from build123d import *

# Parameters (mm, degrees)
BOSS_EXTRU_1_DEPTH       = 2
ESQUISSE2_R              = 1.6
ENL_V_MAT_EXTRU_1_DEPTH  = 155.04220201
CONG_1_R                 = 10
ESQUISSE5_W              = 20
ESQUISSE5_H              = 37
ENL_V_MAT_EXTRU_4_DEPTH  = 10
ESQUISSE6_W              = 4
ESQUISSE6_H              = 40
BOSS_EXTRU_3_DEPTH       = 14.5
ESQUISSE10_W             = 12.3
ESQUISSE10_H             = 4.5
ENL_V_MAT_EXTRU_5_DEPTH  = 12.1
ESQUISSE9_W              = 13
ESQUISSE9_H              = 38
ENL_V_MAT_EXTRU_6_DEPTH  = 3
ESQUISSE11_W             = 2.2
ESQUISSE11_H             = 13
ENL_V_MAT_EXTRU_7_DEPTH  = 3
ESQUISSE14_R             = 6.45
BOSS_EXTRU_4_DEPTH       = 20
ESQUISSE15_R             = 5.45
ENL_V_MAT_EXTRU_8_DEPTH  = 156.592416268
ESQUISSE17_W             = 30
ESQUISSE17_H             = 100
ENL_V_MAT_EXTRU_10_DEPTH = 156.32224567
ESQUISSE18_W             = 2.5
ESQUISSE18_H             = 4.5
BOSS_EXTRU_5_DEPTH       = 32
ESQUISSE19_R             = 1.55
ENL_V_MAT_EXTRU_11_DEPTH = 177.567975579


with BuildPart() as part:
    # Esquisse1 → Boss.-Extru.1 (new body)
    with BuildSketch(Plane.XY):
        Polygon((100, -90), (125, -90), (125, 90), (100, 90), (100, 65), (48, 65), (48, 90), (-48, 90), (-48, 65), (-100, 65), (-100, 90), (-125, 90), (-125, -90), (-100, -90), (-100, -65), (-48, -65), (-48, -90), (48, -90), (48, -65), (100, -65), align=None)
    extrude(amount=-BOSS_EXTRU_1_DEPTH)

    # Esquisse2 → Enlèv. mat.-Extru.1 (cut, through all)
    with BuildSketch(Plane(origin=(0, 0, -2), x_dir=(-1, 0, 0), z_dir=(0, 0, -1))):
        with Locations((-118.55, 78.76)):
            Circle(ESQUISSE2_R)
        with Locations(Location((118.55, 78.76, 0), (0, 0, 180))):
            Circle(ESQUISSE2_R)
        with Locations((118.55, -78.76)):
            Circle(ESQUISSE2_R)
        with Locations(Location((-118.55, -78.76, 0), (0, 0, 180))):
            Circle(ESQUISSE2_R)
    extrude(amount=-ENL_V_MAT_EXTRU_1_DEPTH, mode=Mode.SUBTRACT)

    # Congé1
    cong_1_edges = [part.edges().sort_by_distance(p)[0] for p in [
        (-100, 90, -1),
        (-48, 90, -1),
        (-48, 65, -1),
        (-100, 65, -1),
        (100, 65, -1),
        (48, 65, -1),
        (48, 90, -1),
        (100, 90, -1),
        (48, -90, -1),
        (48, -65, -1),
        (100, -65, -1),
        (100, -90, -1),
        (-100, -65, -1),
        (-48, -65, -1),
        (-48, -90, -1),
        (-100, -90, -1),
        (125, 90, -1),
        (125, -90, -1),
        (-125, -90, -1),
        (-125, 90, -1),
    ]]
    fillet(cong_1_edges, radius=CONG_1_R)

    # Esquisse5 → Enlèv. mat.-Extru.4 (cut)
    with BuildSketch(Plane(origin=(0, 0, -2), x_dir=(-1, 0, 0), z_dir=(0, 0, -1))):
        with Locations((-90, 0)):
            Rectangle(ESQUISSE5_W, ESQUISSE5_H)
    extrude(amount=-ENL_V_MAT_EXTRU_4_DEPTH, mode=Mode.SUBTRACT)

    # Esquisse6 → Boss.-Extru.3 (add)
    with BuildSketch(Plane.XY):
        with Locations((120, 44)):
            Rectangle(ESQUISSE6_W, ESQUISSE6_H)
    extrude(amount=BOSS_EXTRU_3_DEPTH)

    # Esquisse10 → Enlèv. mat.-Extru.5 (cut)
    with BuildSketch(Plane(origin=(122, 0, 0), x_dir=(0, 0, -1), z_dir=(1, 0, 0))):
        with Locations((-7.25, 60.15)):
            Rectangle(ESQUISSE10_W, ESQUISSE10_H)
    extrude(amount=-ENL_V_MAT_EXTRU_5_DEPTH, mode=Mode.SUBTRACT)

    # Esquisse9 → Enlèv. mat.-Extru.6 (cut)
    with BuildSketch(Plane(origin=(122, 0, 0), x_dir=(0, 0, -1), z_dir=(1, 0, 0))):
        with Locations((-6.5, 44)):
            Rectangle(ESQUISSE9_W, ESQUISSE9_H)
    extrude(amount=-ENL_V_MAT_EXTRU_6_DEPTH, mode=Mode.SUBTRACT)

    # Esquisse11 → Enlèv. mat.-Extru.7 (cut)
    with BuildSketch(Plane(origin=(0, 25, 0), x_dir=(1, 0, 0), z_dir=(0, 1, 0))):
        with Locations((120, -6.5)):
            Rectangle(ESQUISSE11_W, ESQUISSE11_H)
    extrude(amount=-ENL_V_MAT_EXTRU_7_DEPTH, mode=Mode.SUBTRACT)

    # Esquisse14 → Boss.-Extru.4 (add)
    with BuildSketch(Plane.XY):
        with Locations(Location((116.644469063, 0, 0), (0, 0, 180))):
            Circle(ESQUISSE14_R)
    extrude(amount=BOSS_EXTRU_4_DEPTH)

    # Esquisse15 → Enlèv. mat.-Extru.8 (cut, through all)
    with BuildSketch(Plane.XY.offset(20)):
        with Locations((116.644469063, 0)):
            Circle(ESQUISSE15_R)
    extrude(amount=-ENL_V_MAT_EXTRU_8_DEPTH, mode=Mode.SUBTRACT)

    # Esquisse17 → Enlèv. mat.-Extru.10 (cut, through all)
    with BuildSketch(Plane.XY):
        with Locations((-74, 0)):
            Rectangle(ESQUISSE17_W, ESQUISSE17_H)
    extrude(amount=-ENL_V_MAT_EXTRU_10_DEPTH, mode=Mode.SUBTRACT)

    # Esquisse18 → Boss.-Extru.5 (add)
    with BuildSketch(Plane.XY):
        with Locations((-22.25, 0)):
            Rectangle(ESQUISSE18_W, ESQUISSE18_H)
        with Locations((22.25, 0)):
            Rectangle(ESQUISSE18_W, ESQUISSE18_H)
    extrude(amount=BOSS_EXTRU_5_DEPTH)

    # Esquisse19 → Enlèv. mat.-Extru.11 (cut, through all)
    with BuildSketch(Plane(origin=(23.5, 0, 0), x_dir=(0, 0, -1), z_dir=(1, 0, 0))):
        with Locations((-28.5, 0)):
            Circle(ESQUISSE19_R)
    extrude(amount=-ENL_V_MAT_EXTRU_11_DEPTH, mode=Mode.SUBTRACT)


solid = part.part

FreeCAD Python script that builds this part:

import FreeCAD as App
import Part
import Sketcher
from FreeCAD import Vector


def edges_at(feature, points):
    """Names of the edges that pass closest to the given points."""
    edges = feature.Shape.Edges
    near = lambda p: min(range(len(edges)), key=lambda i: edges[i].distToShape(Part.Vertex(*p))[0])
    return sorted({f"Edge{near(p) + 1}" for p in points})

doc = App.newDocument("Part")
params = doc.addObject("Spreadsheet::Sheet", "Params")
for row, (alias, value) in enumerate([
    ("sketch1_width", "25 mm"),
    ("sketch1_width2", "52 mm"),
    ("sketch1_width3", "96 mm"),
    ("sketch1_height", "180 mm"),
    ("pad1_length", "2 mm"),
    ("sketch2_diameter", "3.2 mm"),
    ("fillet_radius", "10 mm"),
    ("sketch3_width", "20 mm"),
    ("sketch3_height", "37 mm"),
    ("pocket2_length", "10 mm"),
    ("sketch4_width", "4 mm"),
    ("sketch4_height", "40 mm"),
    ("pad2_length", "14.5 mm"),
    ("sketch5_width", "4.5 mm"),
    ("sketch5_height", "12.3 mm"),
    ("pocket3_length", "12.1 mm"),
    ("sketch6_width", "38 mm"),
    ("sketch6_height", "13 mm"),
    ("pocket4_length", "3 mm"),
    ("sketch7_height", "13 mm"),
    ("sketch7_width", "2.2 mm"),
    ("pocket5_length", "3 mm"),
    ("sketch8_diameter", "12.9 mm"),
    ("pad3_length", "20 mm"),
    ("sketch9_diameter", "10.9 mm"),
    ("sketch10_width", "30 mm"),
    ("sketch10_height", "100 mm"),
    ("sketch11_width", "2.5 mm"),
    ("sketch11_height", "4.5 mm"),
    ("pad4_length", "32 mm"),
    ("sketch12_diameter", "3.1 mm"),
], start=1):
    params.set(f"A{row}", alias)
    params.set(f"B{row}", "=" + value)
    params.setAlias(f"B{row}", alias)

body = doc.addObject("PartDesign::Body", "Body")

# Sketch on XY plane
sketch1 = body.newObject("Sketcher::SketchObject", "Sketch")
sketch1.AttachmentSupport = (doc.getObject("XY_Plane"), [""])
sketch1.MapMode = "FlatFace"
sketch1.addGeometry([
    Part.LineSegment(Vector(100, -90, 0), Vector(125, -90, 0)),  # 0
    Part.LineSegment(Vector(125, -90, 0), Vector(125, 90, 0)),  # 1
    Part.LineSegment(Vector(125, 90, 0), Vector(100, 90, 0)),  # 2
    Part.LineSegment(Vector(100, 90, 0), Vector(100, 65, 0)),  # 3
    Part.LineSegment(Vector(100, 65, 0), Vector(48, 65, 0)),  # 4
    Part.LineSegment(Vector(48, 65, 0), Vector(48, 90, 0)),  # 5
    Part.LineSegment(Vector(48, 90, 0), Vector(-48, 90, 0)),  # 6
    Part.LineSegment(Vector(-48, 90, 0), Vector(-48, 65, 0)),  # 7
    Part.LineSegment(Vector(-48, 65, 0), Vector(-100, 65, 0)),  # 8
    Part.LineSegment(Vector(-100, 65, 0), Vector(-100, 90, 0)),  # 9
    Part.LineSegment(Vector(-100, 90, 0), Vector(-125, 90, 0)),  # 10
    Part.LineSegment(Vector(-125, 90, 0), Vector(-125, -90, 0)),  # 11
    Part.LineSegment(Vector(-125, -90, 0), Vector(-100, -90, 0)),  # 12
    Part.LineSegment(Vector(-100, -90, 0), Vector(-100, -65, 0)),  # 13
    Part.LineSegment(Vector(-100, -65, 0), Vector(-48, -65, 0)),  # 14
    Part.LineSegment(Vector(-48, -65, 0), Vector(-48, -90, 0)),  # 15
    Part.LineSegment(Vector(-48, -90, 0), Vector(48, -90, 0)),  # 16
    Part.LineSegment(Vector(48, -90, 0), Vector(48, -65, 0)),  # 17
    Part.LineSegment(Vector(48, -65, 0), Vector(100, -65, 0)),  # 18
    Part.LineSegment(Vector(100, -65, 0), Vector(100, -90, 0)),  # 19
], False)
sketch1.addConstraint([
    Sketcher.Constraint("Coincident", 0, 2, 1, 1),
    Sketcher.Constraint("Coincident", 1, 2, 2, 1),
    Sketcher.Constraint("Coincident", 2, 2, 3, 1),
    Sketcher.Constraint("Coincident", 3, 2, 4, 1),
    Sketcher.Constraint("Coincident", 4, 2, 5, 1),
    Sketcher.Constraint("Coincident", 5, 2, 6, 1),
    Sketcher.Constraint("Coincident", 6, 2, 7, 1),
    Sketcher.Constraint("Coincident", 7, 2, 8, 1),
    Sketcher.Constraint("Coincident", 8, 2, 9, 1),
    Sketcher.Constraint("Coincident", 9, 2, 10, 1),
    Sketcher.Constraint("Coincident", 10, 2, 11, 1),
    Sketcher.Constraint("Coincident", 11, 2, 12, 1),
    Sketcher.Constraint("Coincident", 12, 2, 13, 1),
    Sketcher.Constraint("Coincident", 13, 2, 14, 1),
    Sketcher.Constraint("Coincident", 14, 2, 15, 1),
    Sketcher.Constraint("Coincident", 15, 2, 16, 1),
    Sketcher.Constraint("Coincident", 16, 2, 17, 1),
    Sketcher.Constraint("Coincident", 17, 2, 18, 1),
    Sketcher.Constraint("Coincident", 18, 2, 19, 1),
    Sketcher.Constraint("Coincident", 19, 2, 0, 1),
    Sketcher.Constraint("Horizontal", 0),
    Sketcher.Constraint("Vertical", 1),
    Sketcher.Constraint("Horizontal", 2),
    Sketcher.Constraint("Vertical", 3),
    Sketcher.Constraint("Horizontal", 4),
    Sketcher.Constraint("Vertical", 5),
    Sketcher.Constraint("Horizontal", 6),
    Sketcher.Constraint("Vertical", 7),
    Sketcher.Constraint("Horizontal", 8),
    Sketcher.Constraint("Vertical", 9),
    Sketcher.Constraint("Horizontal", 10),
    Sketcher.Constraint("Vertical", 11),
    Sketcher.Constraint("Horizontal", 12),
    Sketcher.Constraint("Vertical", 13),
    Sketcher.Constraint("Horizontal", 14),
    Sketcher.Constraint("Vertical", 15),
    Sketcher.Constraint("Horizontal", 16),
    Sketcher.Constraint("Vertical", 17),
    Sketcher.Constraint("Horizontal", 18),
    Sketcher.Constraint("Vertical", 19),
    Sketcher.Constraint("Symmetric", 0, 2, 10, 2, -1, 1),
    Sketcher.Constraint("Symmetric", 2, 2, 12, 2, -1, 1),
    Sketcher.Constraint("Symmetric", 4, 2, 14, 2, -1, 1),
    Sketcher.Constraint("Symmetric", 6, 2, 16, 2, -1, 1),
    Sketcher.Constraint("Symmetric", 8, 2, 18, 2, -1, 1),
    Sketcher.Constraint("Symmetric", 4, 2, 7, 2, -2),
    Sketcher.Constraint("Symmetric", 2, 2, 9, 2, -2),
    Sketcher.Constraint("Horizontal", 2, 2, 5, 2),
    Sketcher.Constraint("Equal", 12, 3),
    Sketcher.Constraint("DistanceX", 0, 1, 0, 2, 25.0),
    Sketcher.Constraint("DistanceX", 4, 2, 4, 1, 52.0),
    Sketcher.Constraint("DistanceX", 6, 2, 6, 1, 96.0),
    Sketcher.Constraint("DistanceY", 1, 1, 1, 2, 180.0),
])
sketch1.setExpression("Constraints[49]", "Params.sketch1_width")
sketch1.setExpression("Constraints[50]", "Params.sketch1_width2")
sketch1.setExpression("Constraints[51]", "Params.sketch1_width3")
sketch1.setExpression("Constraints[52]", "Params.sketch1_height")
pad1 = body.newObject("PartDesign::Pad", "Pad")
pad1.Profile = sketch1
pad1.setExpression("Length", "Params.pad1_length")
pad1.Reversed = True

# Sketch on XY plane
sketch2 = body.newObject("Sketcher::SketchObject", "Sketch001")
sketch2.AttachmentSupport = (doc.getObject("XY_Plane"), [""])
sketch2.MapMode = "FlatFace"
sketch2.AttachmentOffset = App.Placement(Vector(0, 0, -2), App.Rotation())
sketch2.addGeometry([
    Part.Circle(Vector(118.5, 78.8, 0), Vector(0, 0, 1), 1.6),
    Part.Circle(Vector(-118.5, 78.8, 0), Vector(0, 0, 1), 1.6),
    Part.Circle(Vector(-118.5, -78.8, 0), Vector(0, 0, 1), 1.6),
    Part.Circle(Vector(118.5, -78.8, 0), Vector(0, 0, 1), 1.6),
], False)
sketch2.addConstraint([
    Sketcher.Constraint("Equal", 0, 1),
    Sketcher.Constraint("Equal", 1, 2),
    Sketcher.Constraint("Equal", 2, 3),
    Sketcher.Constraint("Symmetric", 0, 3, 2, 3, -1, 1),
    Sketcher.Constraint("Symmetric", 1, 3, 3, 3, -1, 1),
    Sketcher.Constraint("Symmetric", 0, 3, 1, 3, -2),
    Sketcher.Constraint("Diameter", 0, 3.2),
    Sketcher.Constraint("DistanceX", 1, 3, 0, 3, 237.1),
    Sketcher.Constraint("DistanceY", -1, 1, 0, 3, 78.76),
])
sketch2.setExpression("Constraints[6]", "Params.sketch2_diameter")
pocket1 = body.newObject("PartDesign::Pocket", "Pocket")
pocket1.Profile = sketch2
pocket1.Type = "ThroughAll"
pocket1.Reversed = True
doc.recompute()

fillet = body.newObject("PartDesign::Fillet", "Fillet")
fillet.Base = (pocket1, edges_at(pocket1, [
    (-100, 90, -1),
    (-48, 90, -1),
    (-48, 65, -1),
    (-100, 65, -1),
    (100, 65, -1),
    (48, 65, -1),
    (48, 90, -1),
    (100, 90, -1),
    (48, -90, -1),
    (48, -65, -1),
    (100, -65, -1),
    (100, -90, -1),
    (-100, -65, -1),
    (-48, -65, -1),
    (-48, -90, -1),
    (-100, -90, -1),
    (125, 90, -1),
    (125, -90, -1),
    (-125, -90, -1),
    (-125, 90, -1),
]))
fillet.setExpression("Radius", "Params.fillet_radius")

# Sketch on XY plane
sketch3 = body.newObject("Sketcher::SketchObject", "Sketch002")
sketch3.AttachmentSupport = (doc.getObject("XY_Plane"), [""])
sketch3.MapMode = "FlatFace"
sketch3.AttachmentOffset = App.Placement(Vector(0, 0, -2), App.Rotation())
sketch3.addGeometry([
    Part.LineSegment(Vector(100, 18, 0), Vector(100, -18, 0)),
    Part.LineSegment(Vector(100, -18, 0), Vector(80, -18, 0)),
    Part.LineSegment(Vector(80, -18, 0), Vector(80, 18, 0)),
    Part.LineSegment(Vector(80, 18, 0), Vector(100, 18, 0)),
], False)
sketch3.addConstraint([
    Sketcher.Constraint("Coincident", 0, 2, 1, 1),
    Sketcher.Constraint("Coincident", 1, 2, 2, 1),
    Sketcher.Constraint("Coincident", 2, 2, 3, 1),
    Sketcher.Constraint("Coincident", 3, 2, 0, 1),
    Sketcher.Constraint("Vertical", 0),
    Sketcher.Constraint("Horizontal", 1),
    Sketcher.Constraint("Vertical", 2),
    Sketcher.Constraint("Horizontal", 3),
    Sketcher.Constraint("DistanceX", 1, 2, 1, 1, 20.0),
    Sketcher.Constraint("DistanceY", 0, 2, 0, 1, 37.0),
    Sketcher.Constraint("DistanceX", -1, 1, 0, 2, 100.0),
    Sketcher.Constraint("DistanceY", 0, 2, -1, 1, 18.5),
])
sketch3.setExpression("Constraints[8]", "Params.sketch3_width")
sketch3.setExpression("Constraints[9]", "Params.sketch3_height")
pocket2 = body.newObject("PartDesign::Pocket", "Pocket001")
pocket2.Profile = sketch3
pocket2.setExpression("Length", "Params.pocket2_length")
pocket2.Reversed = True

# Sketch on XY plane
sketch4 = body.newObject("Sketcher::SketchObject", "Sketch003")
sketch4.AttachmentSupport = (doc.getObject("XY_Plane"), [""])
sketch4.MapMode = "FlatFace"
sketch4.addGeometry([
    Part.LineSegment(Vector(118, 64, 0), Vector(118, 24, 0)),
    Part.LineSegment(Vector(118, 24, 0), Vector(122, 24, 0)),
    Part.LineSegment(Vector(122, 24, 0), Vector(122, 64, 0)),
    Part.LineSegment(Vector(122, 64, 0), Vector(118, 64, 0)),
], False)
sketch4.addConstraint([
    Sketcher.Constraint("Coincident", 0, 2, 1, 1),
    Sketcher.Constraint("Coincident", 1, 2, 2, 1),
    Sketcher.Constraint("Coincident", 2, 2, 3, 1),
    Sketcher.Constraint("Coincident", 3, 2, 0, 1),
    Sketcher.Constraint("Vertical", 0),
    Sketcher.Constraint("Horizontal", 1),
    Sketcher.Constraint("Vertical", 2),
    Sketcher.Constraint("Horizontal", 3),
    Sketcher.Constraint("DistanceX", 1, 1, 1, 2, 4.0),
    Sketcher.Constraint("DistanceY", 0, 2, 0, 1, 40.0),
    Sketcher.Constraint("DistanceX", -1, 1, 0, 2, 118.0),
    Sketcher.Constraint("DistanceY", -1, 1, 0, 2, 24.0),
])
sketch4.setExpression("Constraints[8]", "Params.sketch4_width")
sketch4.setExpression("Constraints[9]", "Params.sketch4_height")
pad2 = body.newObject("PartDesign::Pad", "Pad001")
pad2.Profile = sketch4
pad2.setExpression("Length", "Params.pad2_length")

# Sketch on YZ plane
sketch5 = body.newObject("Sketcher::SketchObject", "Sketch004")
sketch5.AttachmentSupport = (doc.getObject("YZ_Plane"), [""])
sketch5.MapMode = "FlatFace"
sketch5.AttachmentOffset = App.Placement(Vector(0, 0, 122), App.Rotation())
sketch5.addGeometry([
    Part.LineSegment(Vector(62.4, 13.4, 0), Vector(57.9, 13.4, 0)),
    Part.LineSegment(Vector(57.9, 13.4, 0), Vector(57.9, 1.1, 0)),
    Part.LineSegment(Vector(57.9, 1.1, 0), Vector(62.4, 1.1, 0)),
    Part.LineSegment(Vector(62.4, 1.1, 0), Vector(62.4, 13.4, 0)),
], False)
sketch5.addConstraint([
    Sketcher.Constraint("Coincident", 0, 2, 1, 1),
    Sketcher.Constraint("Coincident", 1, 2, 2, 1),
    Sketcher.Constraint("Coincident", 2, 2, 3, 1),
    Sketcher.Constraint("Coincident", 3, 2, 0, 1),
    Sketcher.Constraint("Horizontal", 0),
    Sketcher.Constraint("Vertical", 1),
    Sketcher.Constraint("Horizontal", 2),
    Sketcher.Constraint("Vertical", 3),
    Sketcher.Constraint("DistanceX", 0, 2, 0, 1, 4.5),
    Sketcher.Constraint("DistanceY", 1, 2, 1, 1, 12.3),
    Sketcher.Constraint("DistanceX", -1, 1, 0, 2, 57.9),
    Sketcher.Constraint("DistanceY", -1, 1, 0, 2, 13.4),
])
sketch5.setExpression("Constraints[8]", "Params.sketch5_width")
sketch5.setExpression("Constraints[9]", "Params.sketch5_height")
pocket3 = body.newObject("PartDesign::Pocket", "Pocket002")
pocket3.Profile = sketch5
pocket3.setExpression("Length", "Params.pocket3_length")

# Sketch on YZ plane
sketch6 = body.newObject("Sketcher::SketchObject", "Sketch005")
sketch6.AttachmentSupport = (doc.getObject("YZ_Plane"), [""])
sketch6.MapMode = "FlatFace"
sketch6.AttachmentOffset = App.Placement(Vector(0, 0, 122), App.Rotation())
sketch6.addGeometry([
    Part.LineSegment(Vector(63, 13, 0), Vector(25, 13, 0)),
    Part.LineSegment(Vector(25, 13, 0), Vector(25, 0, 0)),
    Part.LineSegment(Vector(25, 0, 0), Vector(63, 0, 0)),
    Part.LineSegment(Vector(63, 0, 0), Vector(63, 13, 0)),
], False)
sketch6.addConstraint([
    Sketcher.Constraint("Coincident", 0, 2, 1, 1),
    Sketcher.Constraint("Coincident", 1, 2, 2, 1),
    Sketcher.Constraint("Coincident", 2, 2, 3, 1),
    Sketcher.Constraint("Coincident", 3, 2, 0, 1),
    Sketcher.Constraint("Horizontal", 0),
    Sketcher.Constraint("Vertical", 1),
    Sketcher.Constraint("Horizontal", 2),
    Sketcher.Constraint("Vertical", 3),
    Sketcher.Constraint("PointOnObject", 1, 2, -1),
    Sketcher.Constraint("DistanceX", 0, 2, 0, 1, 38.0),
    Sketcher.Constraint("DistanceY", 1, 2, 1, 1, 13.0),
    Sketcher.Constraint("DistanceX", -1, 1, 0, 2, 25.0),
])
sketch6.setExpression("Constraints[9]", "Params.sketch6_width")
sketch6.setExpression("Constraints[10]", "Params.sketch6_height")
pocket4 = body.newObject("PartDesign::Pocket", "Pocket003")
pocket4.Profile = sketch6
pocket4.setExpression("Length", "Params.pocket4_length")

# Sketch on XZ plane
sketch7 = body.newObject("Sketcher::SketchObject", "Sketch006")
sketch7.AttachmentSupport = (doc.getObject("XZ_Plane"), [""])
sketch7.MapMode = "FlatFace"
sketch7.AttachmentOffset = App.Placement(Vector(0, 0, -25), App.Rotation())
sketch7.addGeometry([
    Part.LineSegment(Vector(118.9, 0, 0), Vector(118.9, 13, 0)),
    Part.LineSegment(Vector(118.9, 13, 0), Vector(121.1, 13, 0)),
    Part.LineSegment(Vector(121.1, 13, 0), Vector(121.1, 0, 0)),
    Part.LineSegment(Vector(121.1, 0, 0), Vector(118.9, 0, 0)),
], False)
sketch7.addConstraint([
    Sketcher.Constraint("Coincident", 0, 2, 1, 1),
    Sketcher.Constraint("Coincident", 1, 2, 2, 1),
    Sketcher.Constraint("Coincident", 2, 2, 3, 1),
    Sketcher.Constraint("Coincident", 3, 2, 0, 1),
    Sketcher.Constraint("Vertical", 0),
    Sketcher.Constraint("Horizontal", 1),
    Sketcher.Constraint("Vertical", 2),
    Sketcher.Constraint("Horizontal", 3),
    Sketcher.Constraint("PointOnObject", 2, 2, -1),
    Sketcher.Constraint("DistanceY", 0, 1, 0, 2, 13.0),
    Sketcher.Constraint("DistanceX", 1, 1, 1, 2, 2.2),
    Sketcher.Constraint("DistanceX", -1, 1, 0, 2, 118.9),
])
sketch7.setExpression("Constraints[9]", "Params.sketch7_height")
sketch7.setExpression("Constraints[10]", "Params.sketch7_width")
pocket5 = body.newObject("PartDesign::Pocket", "Pocket004")
pocket5.Profile = sketch7
pocket5.setExpression("Length", "Params.pocket5_length")
pocket5.Reversed = True

# Sketch on XY plane
sketch8 = body.newObject("Sketcher::SketchObject", "Sketch007")
sketch8.AttachmentSupport = (doc.getObject("XY_Plane"), [""])
sketch8.MapMode = "FlatFace"
sketch8.addGeometry(Part.Circle(Vector(117, 0, 0), Vector(0, 0, 1), 6), False)
sketch8.addConstraint([
    Sketcher.Constraint("PointOnObject", 0, 3, -1),
    Sketcher.Constraint("Diameter", 0, 12.9),
    Sketcher.Constraint("DistanceX", -1, 1, 0, 3, 116.644469),
])
sketch8.setExpression("Constraints[1]", "Params.sketch8_diameter")
pad3 = body.newObject("PartDesign::Pad", "Pad002")
pad3.Profile = sketch8
pad3.setExpression("Length", "Params.pad3_length")

# Sketch on XY plane
sketch9 = body.newObject("Sketcher::SketchObject", "Sketch008")
sketch9.AttachmentSupport = (doc.getObject("XY_Plane"), [""])
sketch9.MapMode = "FlatFace"
sketch9.AttachmentOffset = App.Placement(Vector(0, 0, 20), App.Rotation())
sketch9.addGeometry(Part.Circle(Vector(117, 0, 0), Vector(0, 0, 1), 5), False)
sketch9.addConstraint([
    Sketcher.Constraint("PointOnObject", 0, 3, -1),
    Sketcher.Constraint("Diameter", 0, 10.9),
    Sketcher.Constraint("DistanceX", -1, 1, 0, 3, 116.644469),
])
sketch9.setExpression("Constraints[1]", "Params.sketch9_diameter")
pocket6 = body.newObject("PartDesign::Pocket", "Pocket005")
pocket6.Profile = sketch9
pocket6.Type = "ThroughAll"

# Sketch on XY plane
sketch10 = body.newObject("Sketcher::SketchObject", "Sketch009")
sketch10.AttachmentSupport = (doc.getObject("XY_Plane"), [""])
sketch10.MapMode = "FlatFace"
sketch10.addGeometry([
    Part.LineSegment(Vector(-89, 50, 0), Vector(-89, -50, 0)),
    Part.LineSegment(Vector(-89, -50, 0), Vector(-59, -50, 0)),
    Part.LineSegment(Vector(-59, -50, 0), Vector(-59, 50, 0)),
    Part.LineSegment(Vector(-59, 50, 0), Vector(-89, 50, 0)),
], False)
sketch10.addConstraint([
    Sketcher.Constraint("Coincident", 0, 2, 1, 1),
    Sketcher.Constraint("Coincident", 1, 2, 2, 1),
    Sketcher.Constraint("Coincident", 2, 2, 3, 1),
    Sketcher.Constraint("Coincident", 3, 2, 0, 1),
    Sketcher.Constraint("Vertical", 0),
    Sketcher.Constraint("Horizontal", 1),
    Sketcher.Constraint("Vertical", 2),
    Sketcher.Constraint("Horizontal", 3),
    Sketcher.Constraint("DistanceX", 1, 1, 1, 2, 30.0),
    Sketcher.Constraint("DistanceY", 0, 2, 0, 1, 100.0),
    Sketcher.Constraint("DistanceX", 0, 2, -1, 1, 89.0),
    Sketcher.Constraint("DistanceY", 0, 2, -1, 1, 50.0),
])
sketch10.setExpression("Constraints[8]", "Params.sketch10_width")
sketch10.setExpression("Constraints[9]", "Params.sketch10_height")
pocket7 = body.newObject("PartDesign::Pocket", "Pocket006")
pocket7.Profile = sketch10
pocket7.Type = "ThroughAll"

# Sketch on XY plane
sketch11 = body.newObject("Sketcher::SketchObject", "Sketch010")
sketch11.AttachmentSupport = (doc.getObject("XY_Plane"), [""])
sketch11.MapMode = "FlatFace"
sketch11.addGeometry([
    Part.LineSegment(Vector(-23.5, 2.2, 0), Vector(-23.5, -2.2, 0)),  # 0
    Part.LineSegment(Vector(-23.5, -2.2, 0), Vector(-21, -2.2, 0)),  # 1
    Part.LineSegment(Vector(-21, -2.2, 0), Vector(-21, 2.2, 0)),  # 2
    Part.LineSegment(Vector(-21, 2.2, 0), Vector(-23.5, 2.2, 0)),  # 3
    Part.LineSegment(Vector(21, 2.2, 0), Vector(21, -2.2, 0)),  # 4
    Part.LineSegment(Vector(21, -2.2, 0), Vector(23.5, -2.2, 0)),  # 5
    Part.LineSegment(Vector(23.5, -2.2, 0), Vector(23.5, 2.2, 0)),  # 6
    Part.LineSegment(Vector(23.5, 2.2, 0), Vector(21, 2.2, 0)),  # 7
], False)
sketch11.addConstraint([
    Sketcher.Constraint("Coincident", 0, 2, 1, 1),
    Sketcher.Constraint("Coincident", 1, 2, 2, 1),
    Sketcher.Constraint("Coincident", 2, 2, 3, 1),
    Sketcher.Constraint("Coincident", 3, 2, 0, 1),
    Sketcher.Constraint("Coincident", 4, 2, 5, 1),
    Sketcher.Constraint("Coincident", 5, 2, 6, 1),
    Sketcher.Constraint("Coincident", 6, 2, 7, 1),
    Sketcher.Constraint("Coincident", 7, 2, 4, 1),
    Sketcher.Constraint("Vertical", 0),
    Sketcher.Constraint("Horizontal", 1),
    Sketcher.Constraint("Vertical", 2),
    Sketcher.Constraint("Horizontal", 3),
    Sketcher.Constraint("Vertical", 4),
    Sketcher.Constraint("Horizontal", 5),
    Sketcher.Constraint("Vertical", 6),
    Sketcher.Constraint("Horizontal", 7),
    Sketcher.Constraint("Symmetric", 2, 2, 4, 2, -1, 1),
    Sketcher.Constraint("Symmetric", 0, 2, 6, 2, -1, 1),
    Sketcher.Constraint("Horizontal", 1, 2, 4, 2),
    Sketcher.Constraint("DistanceX", 1, 1, 1, 2, 2.5),
    Sketcher.Constraint("DistanceY", 0, 2, 0, 1, 4.5),
    Sketcher.Constraint("DistanceX", 1, 2, -1, 1, 21.0),
])
sketch11.setExpression("Constraints[19]", "Params.sketch11_width")
sketch11.setExpression("Constraints[20]", "Params.sketch11_height")
pad4 = body.newObject("PartDesign::Pad", "Pad003")
pad4.Profile = sketch11
pad4.setExpression("Length", "Params.pad4_length")

# Sketch on YZ plane
sketch12 = body.newObject("Sketcher::SketchObject", "Sketch011")
sketch12.AttachmentSupport = (doc.getObject("YZ_Plane"), [""])
sketch12.MapMode = "FlatFace"
sketch12.AttachmentOffset = App.Placement(Vector(0, 0, 23.5), App.Rotation())
sketch12.addGeometry(Part.Circle(Vector(0, 28.5, 0), Vector(0, 0, 1), 1.6), False)
sketch12.addConstraint([
    Sketcher.Constraint("PointOnObject", 0, 3, -2),
    Sketcher.Constraint("Diameter", 0, 3.1),
    Sketcher.Constraint("DistanceY", -1, 1, 0, 3, 28.5),
])
sketch12.setExpression("Constraints[1]", "Params.sketch12_diameter")
pocket8 = body.newObject("PartDesign::Pocket", "Pocket007")
pocket8.Profile = sketch12
pocket8.Type = "ThroughAll"

doc.recompute()
